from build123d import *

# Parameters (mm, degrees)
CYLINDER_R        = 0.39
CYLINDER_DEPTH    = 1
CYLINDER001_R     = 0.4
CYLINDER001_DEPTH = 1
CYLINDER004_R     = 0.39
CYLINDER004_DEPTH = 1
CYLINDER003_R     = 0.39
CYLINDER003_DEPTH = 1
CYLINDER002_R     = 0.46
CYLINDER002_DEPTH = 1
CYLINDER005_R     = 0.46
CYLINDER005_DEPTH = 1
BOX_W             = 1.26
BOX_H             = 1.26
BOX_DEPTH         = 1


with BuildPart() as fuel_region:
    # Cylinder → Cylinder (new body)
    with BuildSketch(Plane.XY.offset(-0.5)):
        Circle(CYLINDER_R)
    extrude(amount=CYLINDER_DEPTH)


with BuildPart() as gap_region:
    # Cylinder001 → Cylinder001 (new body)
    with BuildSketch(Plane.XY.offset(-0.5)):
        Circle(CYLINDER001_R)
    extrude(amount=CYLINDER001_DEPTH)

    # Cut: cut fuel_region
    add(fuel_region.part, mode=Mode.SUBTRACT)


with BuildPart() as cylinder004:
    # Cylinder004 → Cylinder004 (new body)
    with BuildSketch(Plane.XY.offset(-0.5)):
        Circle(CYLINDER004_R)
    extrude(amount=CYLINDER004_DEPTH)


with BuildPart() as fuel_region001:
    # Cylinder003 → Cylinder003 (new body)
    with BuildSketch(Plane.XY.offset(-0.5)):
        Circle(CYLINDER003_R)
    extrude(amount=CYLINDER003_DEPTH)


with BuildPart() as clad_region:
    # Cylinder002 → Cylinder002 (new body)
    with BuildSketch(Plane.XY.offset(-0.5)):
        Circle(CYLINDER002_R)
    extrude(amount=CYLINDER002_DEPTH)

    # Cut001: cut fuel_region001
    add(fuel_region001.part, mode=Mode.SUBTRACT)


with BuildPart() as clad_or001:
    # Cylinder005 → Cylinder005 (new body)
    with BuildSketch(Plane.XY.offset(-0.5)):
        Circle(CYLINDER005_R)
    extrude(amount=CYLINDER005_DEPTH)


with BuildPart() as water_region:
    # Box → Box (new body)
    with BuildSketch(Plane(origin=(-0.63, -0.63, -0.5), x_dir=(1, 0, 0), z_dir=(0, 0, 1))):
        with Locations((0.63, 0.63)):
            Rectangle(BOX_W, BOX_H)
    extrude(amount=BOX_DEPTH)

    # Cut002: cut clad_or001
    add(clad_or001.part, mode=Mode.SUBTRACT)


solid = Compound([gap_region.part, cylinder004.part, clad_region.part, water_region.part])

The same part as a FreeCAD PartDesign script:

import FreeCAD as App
import Part
import Sketcher
from FreeCAD import Vector
Q = App.Units.Quantity

doc = App.newDocument("Part")
body = doc.addObject("PartDesign::Body", "Body")

# Sketch on XY plane
sketch1 = body.newObject("Sketcher::SketchObject", "Sketch")
sketch1.AttachmentSupport = (doc.getObject("XY_Plane"), [""])
sketch1.MapMode = "FlatFace"
sketch1.AttachmentOffset = App.Placement(Vector(0, 0, -0.5), App.Rotation())
sketch1.addGeometry(Part.Circle(Vector(0, 0, 0), Vector(0, 0, 1), 0.39), False)
sketch1.addConstraint(Sketcher.Constraint("Coincident", 0, 3, -1, 1))
sketch1.addConstraint(Sketcher.Constraint("Diameter", 0, Q("0.78 mm")))
pad1 = body.newObject("PartDesign::Pad", "Pad")
pad1.Profile = sketch1
pad1.Length = 1
body2 = doc.addObject("PartDesign::Body", "Body001")

# Sketch on XY plane
sketch2 = body2.newObject("Sketcher::SketchObject", "Sketch001")
sketch2.AttachmentSupport = (doc.getObject("XY_Plane001"), [""])
sketch2.MapMode = "FlatFace"
sketch2.AttachmentOffset = App.Placement(Vector(0, 0, -0.5), App.Rotation())
sketch2.addGeometry(Part.Circle(Vector(0, 0, 0), Vector(0, 0, 1), 0.4), False)
sketch2.addConstraint(Sketcher.Constraint("Coincident", 0, 3, -1, 1))
sketch2.addConstraint(Sketcher.Constraint("Diameter", 0, Q("0.8 mm")))
pad2 = body2.newObject("PartDesign::Pad", "Pad001")
pad2.Profile = sketch2
pad2.Length = 1
doc.recompute()

boolean = body2.newObject("PartDesign::Boolean", "Boolean")
boolean.Type = "Cut"
boolean.addObjects([body])
body3 = doc.addObject("PartDesign::Body", "Body002")

# Sketch on XY plane
sketch3 = body3.newObject("Sketcher::SketchObject", "Sketch002")
sketch3.AttachmentSupport = (doc.getObject("XY_Plane002"), [""])
sketch3.MapMode = "FlatFace"
sketch3.AttachmentOffset = App.Placement(Vector(0, 0, -0.5), App.Rotation())
sketch3.addGeometry(Part.Circle(Vector(0, 0, 0), Vector(0, 0, 1), 0.39), False)
sketch3.addConstraint(Sketcher.Constraint("Coincident", 0, 3, -1, 1))
sketch3.addConstraint(Sketcher.Constraint("Diameter", 0, Q("0.78 mm")))
pad3 = body3.newObject("PartDesign::Pad", "Pad002")
pad3.Profile = sketch3
pad3.Length = 1
body4 = doc.addObject("PartDesign::Body", "Body003")

# Sketch on XY plane
sketch4 = body4.newObject("Sketcher::SketchObject", "Sketch003")
sketch4.AttachmentSupport = (doc.getObject("XY_Plane003"), [""])
sketch4.MapMode = "FlatFace"
sketch4.AttachmentOffset = App.Placement(Vector(0, 0, -0.5), App.Rotation())
sketch4.addGeometry(Part.Circle(Vector(0, 0, 0), Vector(0, 0, 1), 0.39), False)
sketch4.addConstraint(Sketcher.Constraint("Coincident", 0, 3, -1, 1))
sketch4.addConstraint(Sketcher.Constraint("Diameter", 0, Q("0.78 mm")))
pad4 = body4.newObject("PartDesign::Pad", "Pad003")
pad4.Profile = sketch4
pad4.Length = 1
body5 = doc.addObject("PartDesign::Body", "Body004")

# Sketch on XY plane
sketch5 = body5.newObject("Sketcher::SketchObject", "Sketch004")
sketch5.AttachmentSupport = (doc.getObject("XY_Plane004"), [""])
sketch5.MapMode = "FlatFace"
sketch5.AttachmentOffset = App.Placement(Vector(0, 0, -0.5), App.Rotation())
sketch5.addGeometry(Part.Circle(Vector(0, 0, 0), Vector(0, 0, 1), 0.46), False)
sketch5.addConstraint(Sketcher.Constraint("Coincident", 0, 3, -1, 1))
sketch5.addConstraint(Sketcher.Constraint("Diameter", 0, Q("0.92 mm")))
pad5 = body5.newObject("PartDesign::Pad", "Pad004")
pad5.Profile = sketch5
pad5.Length = 1
doc.recompute()

boolean2 = body5.newObject("PartDesign::Boolean", "Boolean001")
boolean2.Type = "Cut"
boolean2.addObjects([body4])
body6 = doc.addObject("PartDesign::Body", "Body005")

# Sketch on XY plane
sketch6 = body6.newObject("Sketcher::SketchObject", "Sketch005")
sketch6.AttachmentSupport = (doc.getObject("XY_Plane005"), [""])
sketch6.MapMode = "FlatFace"
sketch6.AttachmentOffset = App.Placement(Vector(0, 0, -0.5), App.Rotation())
sketch6.addGeometry(Part.Circle(Vector(0, 0, 0), Vector(0, 0, 1), 0.46), False)
sketch6.addConstraint(Sketcher.Constraint("Coincident", 0, 3, -1, 1))
sketch6.addConstraint(Sketcher.Constraint("Diameter", 0, Q("0.92 mm")))
pad6 = body6.newObject("PartDesign::Pad", "Pad005")
pad6.Profile = sketch6
pad6.Length = 1
body7 = doc.addObject("PartDesign::Body", "Body006")

# Sketch on XY plane
sketch7 = body7.newObject("Sketcher::SketchObject", "Sketch006")
sketch7.AttachmentSupport = (doc.getObject("XY_Plane006"), [""])
sketch7.MapMode = "FlatFace"
sketch7.AttachmentOffset = App.Placement(Vector(0, 0, -0.5), App.Rotation())
sketch7.addGeometry(Part.LineSegment(Vector(-0.6, 0.6, 0), Vector(-0.6, -0.6, 0)), False)
sketch7.addGeometry(Part.LineSegment(Vector(-0.6, -0.6, 0), Vector(0.6, -0.6, 0)), False)
sketch7.addGeometry(Part.LineSegment(Vector(0.6, -0.6, 0), Vector(0.6, 0.6, 0)), False)
sketch7.addGeometry(Part.LineSegment(Vector(0.6, 0.6, 0), Vector(-0.6, 0.6, 0)), False)
sketch7.addConstraint(Sketcher.Constraint("Coincident", 0, 2, 1, 1))
sketch7.addConstraint(Sketcher.Constraint("Coincident", 1, 2, 2, 1))
sketch7.addConstraint(Sketcher.Constraint("Coincident", 2, 2, 3, 1))
sketch7.addConstraint(Sketcher.Constraint("Coincident", 3, 2, 0, 1))
sketch7.addConstraint(Sketcher.Constraint("Vertical", 0))
sketch7.addConstraint(Sketcher.Constraint("Horizontal", 1))
sketch7.addConstraint(Sketcher.Constraint("Vertical", 2))
sketch7.addConstraint(Sketcher.Constraint("Horizontal", 3))
sketch7.addConstraint(Sketcher.Constraint("Symmetric", 0, 2, 2, 2, -1, 1))
sketch7.addConstraint(Sketcher.Constraint("Equal", 3, 0))
sketch7.addConstraint(Sketcher.Constraint("DistanceX", 1, 1, 1, 2, Q("1.26 mm")))
pad7 = body7.newObject("PartDesign::Pad", "Pad006")
pad7.Profile = sketch7
pad7.Length = 1
doc.recompute()

boolean3 = body7.newObject("PartDesign::Boolean", "Boolean002")
boolean3.Type = "Cut"
boolean3.addObjects([body6])

doc.recompute()
